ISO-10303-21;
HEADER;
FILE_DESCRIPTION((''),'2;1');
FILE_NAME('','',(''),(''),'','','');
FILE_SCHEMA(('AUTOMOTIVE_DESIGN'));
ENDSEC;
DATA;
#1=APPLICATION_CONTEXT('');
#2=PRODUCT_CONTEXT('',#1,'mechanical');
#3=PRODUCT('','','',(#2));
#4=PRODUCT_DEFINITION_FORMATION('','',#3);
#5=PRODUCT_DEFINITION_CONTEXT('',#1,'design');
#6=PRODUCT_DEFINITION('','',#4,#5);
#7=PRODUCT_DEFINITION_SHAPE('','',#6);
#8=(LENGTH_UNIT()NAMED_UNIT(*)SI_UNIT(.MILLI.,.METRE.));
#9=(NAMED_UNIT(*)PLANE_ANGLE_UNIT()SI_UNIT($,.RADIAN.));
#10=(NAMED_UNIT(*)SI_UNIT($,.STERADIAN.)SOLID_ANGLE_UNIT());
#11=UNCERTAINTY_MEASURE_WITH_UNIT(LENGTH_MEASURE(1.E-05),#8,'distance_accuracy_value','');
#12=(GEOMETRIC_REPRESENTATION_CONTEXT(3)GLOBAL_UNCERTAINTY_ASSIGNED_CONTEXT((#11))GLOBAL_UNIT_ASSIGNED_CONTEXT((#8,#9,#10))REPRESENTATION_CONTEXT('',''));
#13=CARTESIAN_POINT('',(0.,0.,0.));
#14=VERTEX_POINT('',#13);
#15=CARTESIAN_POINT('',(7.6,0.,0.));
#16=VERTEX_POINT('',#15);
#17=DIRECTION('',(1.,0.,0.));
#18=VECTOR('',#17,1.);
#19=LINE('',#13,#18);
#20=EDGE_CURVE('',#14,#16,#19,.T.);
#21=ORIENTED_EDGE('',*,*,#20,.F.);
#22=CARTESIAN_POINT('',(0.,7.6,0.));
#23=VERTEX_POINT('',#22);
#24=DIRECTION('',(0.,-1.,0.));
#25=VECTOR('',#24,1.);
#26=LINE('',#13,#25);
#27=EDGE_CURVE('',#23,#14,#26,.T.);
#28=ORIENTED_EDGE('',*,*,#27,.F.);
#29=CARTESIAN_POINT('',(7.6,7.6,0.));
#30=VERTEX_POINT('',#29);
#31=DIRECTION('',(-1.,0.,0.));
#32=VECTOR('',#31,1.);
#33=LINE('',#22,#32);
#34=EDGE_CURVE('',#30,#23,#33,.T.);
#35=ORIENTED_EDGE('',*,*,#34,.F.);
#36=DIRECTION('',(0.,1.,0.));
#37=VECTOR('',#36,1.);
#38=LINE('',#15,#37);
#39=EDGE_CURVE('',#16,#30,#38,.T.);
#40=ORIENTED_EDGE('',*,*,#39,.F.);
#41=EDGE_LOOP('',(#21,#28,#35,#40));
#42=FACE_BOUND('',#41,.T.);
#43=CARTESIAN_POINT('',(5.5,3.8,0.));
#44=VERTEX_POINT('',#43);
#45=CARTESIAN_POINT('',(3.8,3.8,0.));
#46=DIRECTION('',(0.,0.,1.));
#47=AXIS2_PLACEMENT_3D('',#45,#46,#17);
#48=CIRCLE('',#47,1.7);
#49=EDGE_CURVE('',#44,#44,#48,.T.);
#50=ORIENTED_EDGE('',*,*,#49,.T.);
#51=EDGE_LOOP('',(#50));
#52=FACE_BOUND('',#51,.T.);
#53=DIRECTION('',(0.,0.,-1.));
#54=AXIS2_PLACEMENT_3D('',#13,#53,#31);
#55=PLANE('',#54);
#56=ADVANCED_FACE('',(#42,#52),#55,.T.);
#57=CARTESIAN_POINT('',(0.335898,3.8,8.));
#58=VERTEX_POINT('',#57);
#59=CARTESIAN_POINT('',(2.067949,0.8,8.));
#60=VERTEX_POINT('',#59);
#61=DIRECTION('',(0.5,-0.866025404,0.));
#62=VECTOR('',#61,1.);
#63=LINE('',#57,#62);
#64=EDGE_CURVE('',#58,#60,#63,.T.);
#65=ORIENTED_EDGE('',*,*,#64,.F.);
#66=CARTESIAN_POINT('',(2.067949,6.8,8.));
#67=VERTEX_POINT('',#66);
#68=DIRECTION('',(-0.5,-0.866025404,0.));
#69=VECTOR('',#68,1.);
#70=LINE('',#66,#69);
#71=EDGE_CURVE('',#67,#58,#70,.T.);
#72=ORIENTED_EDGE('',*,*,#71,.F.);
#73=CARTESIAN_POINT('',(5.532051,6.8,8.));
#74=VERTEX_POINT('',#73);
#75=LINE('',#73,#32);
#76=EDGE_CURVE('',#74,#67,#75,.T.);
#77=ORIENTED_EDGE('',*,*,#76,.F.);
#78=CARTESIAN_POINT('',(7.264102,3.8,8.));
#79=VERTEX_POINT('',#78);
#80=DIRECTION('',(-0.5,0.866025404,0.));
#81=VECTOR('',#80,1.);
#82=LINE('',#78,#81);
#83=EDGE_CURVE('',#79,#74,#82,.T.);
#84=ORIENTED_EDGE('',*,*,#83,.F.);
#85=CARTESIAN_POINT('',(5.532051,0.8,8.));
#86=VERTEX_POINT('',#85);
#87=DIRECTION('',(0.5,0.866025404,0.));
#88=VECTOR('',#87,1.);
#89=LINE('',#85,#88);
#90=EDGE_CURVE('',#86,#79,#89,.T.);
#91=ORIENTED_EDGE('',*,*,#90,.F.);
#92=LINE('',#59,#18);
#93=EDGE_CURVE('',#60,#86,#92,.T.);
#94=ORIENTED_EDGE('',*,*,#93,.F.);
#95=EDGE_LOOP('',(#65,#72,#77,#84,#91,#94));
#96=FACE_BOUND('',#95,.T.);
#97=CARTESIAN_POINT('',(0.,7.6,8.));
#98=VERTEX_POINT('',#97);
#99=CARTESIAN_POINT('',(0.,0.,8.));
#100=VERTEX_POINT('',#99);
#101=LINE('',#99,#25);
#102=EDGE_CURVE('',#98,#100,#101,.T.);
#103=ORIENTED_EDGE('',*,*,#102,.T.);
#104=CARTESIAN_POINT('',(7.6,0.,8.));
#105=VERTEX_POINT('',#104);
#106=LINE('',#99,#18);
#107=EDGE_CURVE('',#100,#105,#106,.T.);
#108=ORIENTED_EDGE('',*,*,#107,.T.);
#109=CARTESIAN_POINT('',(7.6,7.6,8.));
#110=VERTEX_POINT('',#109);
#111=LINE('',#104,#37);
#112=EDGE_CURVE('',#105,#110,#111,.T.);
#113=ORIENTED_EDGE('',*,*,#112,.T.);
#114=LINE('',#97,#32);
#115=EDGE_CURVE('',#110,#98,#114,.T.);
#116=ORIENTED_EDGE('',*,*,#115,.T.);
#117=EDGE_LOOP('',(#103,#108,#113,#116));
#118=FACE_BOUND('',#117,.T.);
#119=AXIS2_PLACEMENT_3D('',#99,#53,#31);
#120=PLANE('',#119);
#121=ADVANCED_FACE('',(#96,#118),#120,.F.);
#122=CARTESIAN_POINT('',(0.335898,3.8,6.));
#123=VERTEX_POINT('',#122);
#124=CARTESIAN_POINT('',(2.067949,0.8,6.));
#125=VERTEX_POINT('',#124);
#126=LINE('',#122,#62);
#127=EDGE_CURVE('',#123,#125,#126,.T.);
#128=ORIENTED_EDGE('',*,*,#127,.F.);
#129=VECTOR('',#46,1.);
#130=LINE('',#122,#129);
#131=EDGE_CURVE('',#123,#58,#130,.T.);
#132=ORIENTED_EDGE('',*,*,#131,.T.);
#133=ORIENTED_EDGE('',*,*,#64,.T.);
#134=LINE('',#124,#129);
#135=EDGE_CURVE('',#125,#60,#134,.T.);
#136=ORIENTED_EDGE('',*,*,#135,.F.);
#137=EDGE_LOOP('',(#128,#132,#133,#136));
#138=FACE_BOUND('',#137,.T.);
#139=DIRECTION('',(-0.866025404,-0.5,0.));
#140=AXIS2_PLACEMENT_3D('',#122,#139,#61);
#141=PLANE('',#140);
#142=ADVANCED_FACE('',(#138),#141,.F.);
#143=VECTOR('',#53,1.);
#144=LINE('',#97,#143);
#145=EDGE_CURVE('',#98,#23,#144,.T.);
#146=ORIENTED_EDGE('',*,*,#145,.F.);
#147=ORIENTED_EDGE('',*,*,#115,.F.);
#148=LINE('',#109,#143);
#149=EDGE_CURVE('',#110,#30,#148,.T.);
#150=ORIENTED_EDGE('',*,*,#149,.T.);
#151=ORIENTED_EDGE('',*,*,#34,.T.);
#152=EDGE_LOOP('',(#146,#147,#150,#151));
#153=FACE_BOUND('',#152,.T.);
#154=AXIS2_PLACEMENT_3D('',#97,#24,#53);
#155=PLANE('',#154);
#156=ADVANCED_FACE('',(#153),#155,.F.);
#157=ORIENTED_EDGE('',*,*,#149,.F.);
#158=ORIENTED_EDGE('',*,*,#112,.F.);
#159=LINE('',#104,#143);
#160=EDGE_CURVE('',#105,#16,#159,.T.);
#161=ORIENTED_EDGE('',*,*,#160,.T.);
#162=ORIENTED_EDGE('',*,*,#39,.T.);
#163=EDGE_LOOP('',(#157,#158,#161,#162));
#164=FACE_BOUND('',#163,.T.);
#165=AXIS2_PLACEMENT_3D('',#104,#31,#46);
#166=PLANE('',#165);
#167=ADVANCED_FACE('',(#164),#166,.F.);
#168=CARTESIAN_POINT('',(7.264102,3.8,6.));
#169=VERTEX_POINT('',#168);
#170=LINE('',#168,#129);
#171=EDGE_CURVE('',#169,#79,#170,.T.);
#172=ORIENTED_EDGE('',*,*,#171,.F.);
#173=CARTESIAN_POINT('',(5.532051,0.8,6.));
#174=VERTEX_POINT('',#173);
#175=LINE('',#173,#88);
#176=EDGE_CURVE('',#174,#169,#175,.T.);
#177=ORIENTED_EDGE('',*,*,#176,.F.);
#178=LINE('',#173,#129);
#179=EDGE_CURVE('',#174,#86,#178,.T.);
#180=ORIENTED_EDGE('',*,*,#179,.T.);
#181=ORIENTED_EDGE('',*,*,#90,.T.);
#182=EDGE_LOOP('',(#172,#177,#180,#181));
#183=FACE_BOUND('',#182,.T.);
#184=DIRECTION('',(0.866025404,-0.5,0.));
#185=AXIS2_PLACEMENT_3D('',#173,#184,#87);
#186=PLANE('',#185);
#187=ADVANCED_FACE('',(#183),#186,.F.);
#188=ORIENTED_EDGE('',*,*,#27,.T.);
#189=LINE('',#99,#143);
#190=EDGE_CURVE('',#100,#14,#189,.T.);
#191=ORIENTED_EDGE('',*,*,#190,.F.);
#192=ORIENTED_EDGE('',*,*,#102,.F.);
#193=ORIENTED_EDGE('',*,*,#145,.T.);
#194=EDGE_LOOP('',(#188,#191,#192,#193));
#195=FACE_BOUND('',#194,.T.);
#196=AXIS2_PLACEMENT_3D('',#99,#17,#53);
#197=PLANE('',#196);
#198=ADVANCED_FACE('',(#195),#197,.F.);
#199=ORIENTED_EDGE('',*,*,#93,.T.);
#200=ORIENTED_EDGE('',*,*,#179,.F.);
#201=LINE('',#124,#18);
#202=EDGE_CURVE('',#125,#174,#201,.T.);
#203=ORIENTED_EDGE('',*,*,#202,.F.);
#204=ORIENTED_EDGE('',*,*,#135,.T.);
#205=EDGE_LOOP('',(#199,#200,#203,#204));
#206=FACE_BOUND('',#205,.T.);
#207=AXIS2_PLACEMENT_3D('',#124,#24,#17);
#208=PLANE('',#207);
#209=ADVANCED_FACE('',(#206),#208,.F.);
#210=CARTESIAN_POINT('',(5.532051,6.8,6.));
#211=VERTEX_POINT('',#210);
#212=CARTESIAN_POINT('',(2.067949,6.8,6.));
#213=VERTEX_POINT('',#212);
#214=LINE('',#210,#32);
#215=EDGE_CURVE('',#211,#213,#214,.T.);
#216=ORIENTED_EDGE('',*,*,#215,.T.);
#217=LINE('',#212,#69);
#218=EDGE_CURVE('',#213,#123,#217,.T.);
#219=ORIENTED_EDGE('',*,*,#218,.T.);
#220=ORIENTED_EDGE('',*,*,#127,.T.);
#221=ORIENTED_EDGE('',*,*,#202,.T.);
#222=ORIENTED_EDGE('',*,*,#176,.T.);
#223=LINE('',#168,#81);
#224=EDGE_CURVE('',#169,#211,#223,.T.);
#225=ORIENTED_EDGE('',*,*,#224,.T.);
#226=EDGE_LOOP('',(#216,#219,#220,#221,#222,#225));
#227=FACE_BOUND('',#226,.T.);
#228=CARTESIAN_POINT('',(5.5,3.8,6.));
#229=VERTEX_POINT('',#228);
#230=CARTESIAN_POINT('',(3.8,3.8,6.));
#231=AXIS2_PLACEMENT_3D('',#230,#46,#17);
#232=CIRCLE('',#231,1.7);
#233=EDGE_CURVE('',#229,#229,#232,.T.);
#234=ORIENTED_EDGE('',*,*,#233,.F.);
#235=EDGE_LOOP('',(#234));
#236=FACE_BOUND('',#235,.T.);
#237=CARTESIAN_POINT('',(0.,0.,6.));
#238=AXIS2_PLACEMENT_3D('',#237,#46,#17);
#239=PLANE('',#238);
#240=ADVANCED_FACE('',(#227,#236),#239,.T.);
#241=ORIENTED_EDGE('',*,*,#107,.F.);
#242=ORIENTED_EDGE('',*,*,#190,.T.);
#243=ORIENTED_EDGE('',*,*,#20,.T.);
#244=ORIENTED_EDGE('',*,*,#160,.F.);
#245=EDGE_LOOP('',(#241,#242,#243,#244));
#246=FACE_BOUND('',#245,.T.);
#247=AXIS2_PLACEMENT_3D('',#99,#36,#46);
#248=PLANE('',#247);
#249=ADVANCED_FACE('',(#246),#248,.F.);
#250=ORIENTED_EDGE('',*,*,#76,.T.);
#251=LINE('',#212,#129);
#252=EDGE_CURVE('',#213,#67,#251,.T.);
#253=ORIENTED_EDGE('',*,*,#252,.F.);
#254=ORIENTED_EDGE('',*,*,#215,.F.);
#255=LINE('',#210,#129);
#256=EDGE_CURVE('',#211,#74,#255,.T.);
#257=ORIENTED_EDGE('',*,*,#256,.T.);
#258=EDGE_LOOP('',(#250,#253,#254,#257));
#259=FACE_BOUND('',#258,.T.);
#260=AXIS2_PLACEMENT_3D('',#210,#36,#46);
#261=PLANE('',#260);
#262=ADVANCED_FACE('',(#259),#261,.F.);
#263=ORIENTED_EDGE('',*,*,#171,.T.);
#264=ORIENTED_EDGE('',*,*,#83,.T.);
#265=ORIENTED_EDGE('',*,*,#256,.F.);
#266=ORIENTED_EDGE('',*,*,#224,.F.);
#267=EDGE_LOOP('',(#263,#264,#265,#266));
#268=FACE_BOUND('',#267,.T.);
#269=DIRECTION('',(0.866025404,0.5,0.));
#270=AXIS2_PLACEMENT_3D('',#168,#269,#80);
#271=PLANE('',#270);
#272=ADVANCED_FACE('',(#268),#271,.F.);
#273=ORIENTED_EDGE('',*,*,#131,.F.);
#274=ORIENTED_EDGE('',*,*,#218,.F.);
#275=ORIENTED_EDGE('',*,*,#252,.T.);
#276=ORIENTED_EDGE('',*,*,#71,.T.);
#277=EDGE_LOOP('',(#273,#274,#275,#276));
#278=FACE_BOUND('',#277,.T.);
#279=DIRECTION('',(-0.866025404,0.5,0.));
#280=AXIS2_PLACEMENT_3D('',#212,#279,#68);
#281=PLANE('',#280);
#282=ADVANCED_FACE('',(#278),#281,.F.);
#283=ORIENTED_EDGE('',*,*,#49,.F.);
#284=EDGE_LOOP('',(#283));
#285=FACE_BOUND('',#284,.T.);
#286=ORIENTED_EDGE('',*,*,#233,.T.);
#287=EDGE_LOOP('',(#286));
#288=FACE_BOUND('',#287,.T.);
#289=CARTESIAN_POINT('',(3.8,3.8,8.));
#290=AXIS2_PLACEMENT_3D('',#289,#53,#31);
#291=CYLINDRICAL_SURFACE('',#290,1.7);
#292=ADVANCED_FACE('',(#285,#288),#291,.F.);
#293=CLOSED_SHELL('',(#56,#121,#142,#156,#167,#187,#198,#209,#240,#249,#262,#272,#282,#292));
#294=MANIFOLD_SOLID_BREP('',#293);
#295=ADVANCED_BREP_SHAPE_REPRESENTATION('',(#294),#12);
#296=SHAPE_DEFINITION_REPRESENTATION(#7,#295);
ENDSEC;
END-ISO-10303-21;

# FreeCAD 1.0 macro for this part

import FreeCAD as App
import Part
import Sketcher
from FreeCAD import Vector
Q = App.Units.Quantity

doc = App.newDocument("Part")
params = doc.addObject("Spreadsheet::Sheet", "Params")
for row, (alias, value) in enumerate([
    ("sketch1_diameter", "3.4 mm"),
    ("sketch1_width", "7.6 mm"),
    ("pad1_length", "8 mm"),
    ("pocket1_length", "2 mm"),
], start=1):
    params.set(f"A{row}", alias)
    params.set(f"B{row}", "=" + value)
    params.setAlias(f"B{row}", alias)

body = doc.addObject("PartDesign::Body", "Body")

# Sketch on XY plane
sketch1 = body.newObject("Sketcher::SketchObject", "Sketch")
sketch1.AttachmentSupport = (doc.getObject("XY_Plane"), [""])
sketch1.MapMode = "FlatFace"
sketch1.addGeometry([
    Part.LineSegment(Vector(0, 7.6, 0), Vector(0, 0, 0)),  # 0
    Part.LineSegment(Vector(0, 0, 0), Vector(7.6, 0, 0)),  # 1
    Part.LineSegment(Vector(7.6, 0, 0), Vector(7.6, 7.6, 0)),  # 2
    Part.LineSegment(Vector(7.6, 7.6, 0), Vector(0, 7.6, 0)),  # 3
    Part.Circle(Vector(3.8, 3.8, 0), Vector(0, 0, 1), 1.7),  # 4
], False)
sketch1.addConstraint([
    Sketcher.Constraint("Coincident", 0, 2, 1, 1),
    Sketcher.Constraint("Coincident", 1, 2, 2, 1),
    Sketcher.Constraint("Coincident", 2, 2, 3, 1),
    Sketcher.Constraint("Coincident", 3, 2, 0, 1),
    Sketcher.Constraint("Vertical", 0),
    Sketcher.Constraint("Horizontal", 1),
    Sketcher.Constraint("Vertical", 2),
    Sketcher.Constraint("Horizontal", 3),
    Sketcher.Constraint("Coincident", 0, 2, -1, 1),
    Sketcher.Constraint("Equal", 3, 0),
    Sketcher.Constraint("Diameter", 4, Q("3.4 mm")),
    Sketcher.Constraint("DistanceX", 1, 1, 1, 2, Q("7.6 mm")),
    Sketcher.Constraint("DistanceX", -1, 1, 4, 3, Q("3.8 mm")),
    Sketcher.Constraint("DistanceY", -1, 1, 4, 3, Q("3.8 mm")),
])
sketch1.setExpression("Constraints[10]", "Params.sketch1_diameter")
sketch1.setExpression("Constraints[11]", "Params.sketch1_width")
pad1 = body.newObject("PartDesign::Pad", "Pad")
pad1.Profile = sketch1
pad1.setExpression("Length", "Params.pad1_length")

# Sketch on XY plane
sketch2 = body.newObject("Sketcher::SketchObject", "Sketch001")
sketch2.AttachmentSupport = (doc.getObject("XY_Plane"), [""])
sketch2.MapMode = "FlatFace"
sketch2.AttachmentOffset = App.Placement(Vector(0, 0, 8), App.Rotation())
sketch2.addGeometry([
    Part.LineSegment(Vector(5.532051, 0.8, 0), Vector(7.264102, 3.8, 0)),  # 0
    Part.LineSegment(Vector(7.264102, 3.8, 0), Vector(5.532051, 6.8, 0)),  # 1
    Part.LineSegment(Vector(5.532051, 6.8, 0), Vector(2.067949, 6.8, 0)),  # 2
    Part.LineSegment(Vector(2.067949, 6.8, 0), Vector(0.335898, 3.8, 0)),  # 3
    Part.LineSegment(Vector(0.335898, 3.8, 0), Vector(2.067949, 0.8, 0)),  # 4
    Part.LineSegment(Vector(2.067949, 0.8, 0), Vector(5.532051, 0.8, 0)),  # 5
], False)
sketch2.addConstraint([
    Sketcher.Constraint("Coincident", 0, 2, 1, 1),
    Sketcher.Constraint("Coincident", 1, 2, 2, 1),
    Sketcher.Constraint("Coincident", 2, 2, 3, 1),
    Sketcher.Constraint("Coincident", 3, 2, 4, 1),
    Sketcher.Constraint("Coincident", 4, 2, 5, 1),
    Sketcher.Constraint("Coincident", 5, 2, 0, 1),
    Sketcher.Constraint("Horizontal", 2),
    Sketcher.Constraint("Horizontal", 5),
    Sketcher.Constraint("Parallel", 0, 3),
    Sketcher.Constraint("Parallel", 1, 4),
    Sketcher.Constraint("Horizontal", 0, 2, 3, 2),
    Sketcher.Constraint("Vertical", 2, 2, 4, 2),
    Sketcher.Constraint("Vertical", 1, 2, 5, 2),
    Sketcher.Constraint("Angle", 0, Q("60 deg")),
    Sketcher.Constraint("DistanceY", 0, 2, 1, 2, Q("3 mm")),
    Sketcher.Constraint("DistanceY", -1, 1, 0, 2, Q("3.8 mm")),
    Sketcher.Constraint("DistanceX", 2, 2, 2, 1, Q("3.464102 mm")),
    Sketcher.Constraint("DistanceX", -1, 1, 0, 2, Q("7.264102 mm")),
])
pocket1 = body.newObject("PartDesign::Pocket", "Pocket")
pocket1.Profile = sketch2
pocket1.setExpression("Length", "Params.pocket1_length")

doc.recompute()
